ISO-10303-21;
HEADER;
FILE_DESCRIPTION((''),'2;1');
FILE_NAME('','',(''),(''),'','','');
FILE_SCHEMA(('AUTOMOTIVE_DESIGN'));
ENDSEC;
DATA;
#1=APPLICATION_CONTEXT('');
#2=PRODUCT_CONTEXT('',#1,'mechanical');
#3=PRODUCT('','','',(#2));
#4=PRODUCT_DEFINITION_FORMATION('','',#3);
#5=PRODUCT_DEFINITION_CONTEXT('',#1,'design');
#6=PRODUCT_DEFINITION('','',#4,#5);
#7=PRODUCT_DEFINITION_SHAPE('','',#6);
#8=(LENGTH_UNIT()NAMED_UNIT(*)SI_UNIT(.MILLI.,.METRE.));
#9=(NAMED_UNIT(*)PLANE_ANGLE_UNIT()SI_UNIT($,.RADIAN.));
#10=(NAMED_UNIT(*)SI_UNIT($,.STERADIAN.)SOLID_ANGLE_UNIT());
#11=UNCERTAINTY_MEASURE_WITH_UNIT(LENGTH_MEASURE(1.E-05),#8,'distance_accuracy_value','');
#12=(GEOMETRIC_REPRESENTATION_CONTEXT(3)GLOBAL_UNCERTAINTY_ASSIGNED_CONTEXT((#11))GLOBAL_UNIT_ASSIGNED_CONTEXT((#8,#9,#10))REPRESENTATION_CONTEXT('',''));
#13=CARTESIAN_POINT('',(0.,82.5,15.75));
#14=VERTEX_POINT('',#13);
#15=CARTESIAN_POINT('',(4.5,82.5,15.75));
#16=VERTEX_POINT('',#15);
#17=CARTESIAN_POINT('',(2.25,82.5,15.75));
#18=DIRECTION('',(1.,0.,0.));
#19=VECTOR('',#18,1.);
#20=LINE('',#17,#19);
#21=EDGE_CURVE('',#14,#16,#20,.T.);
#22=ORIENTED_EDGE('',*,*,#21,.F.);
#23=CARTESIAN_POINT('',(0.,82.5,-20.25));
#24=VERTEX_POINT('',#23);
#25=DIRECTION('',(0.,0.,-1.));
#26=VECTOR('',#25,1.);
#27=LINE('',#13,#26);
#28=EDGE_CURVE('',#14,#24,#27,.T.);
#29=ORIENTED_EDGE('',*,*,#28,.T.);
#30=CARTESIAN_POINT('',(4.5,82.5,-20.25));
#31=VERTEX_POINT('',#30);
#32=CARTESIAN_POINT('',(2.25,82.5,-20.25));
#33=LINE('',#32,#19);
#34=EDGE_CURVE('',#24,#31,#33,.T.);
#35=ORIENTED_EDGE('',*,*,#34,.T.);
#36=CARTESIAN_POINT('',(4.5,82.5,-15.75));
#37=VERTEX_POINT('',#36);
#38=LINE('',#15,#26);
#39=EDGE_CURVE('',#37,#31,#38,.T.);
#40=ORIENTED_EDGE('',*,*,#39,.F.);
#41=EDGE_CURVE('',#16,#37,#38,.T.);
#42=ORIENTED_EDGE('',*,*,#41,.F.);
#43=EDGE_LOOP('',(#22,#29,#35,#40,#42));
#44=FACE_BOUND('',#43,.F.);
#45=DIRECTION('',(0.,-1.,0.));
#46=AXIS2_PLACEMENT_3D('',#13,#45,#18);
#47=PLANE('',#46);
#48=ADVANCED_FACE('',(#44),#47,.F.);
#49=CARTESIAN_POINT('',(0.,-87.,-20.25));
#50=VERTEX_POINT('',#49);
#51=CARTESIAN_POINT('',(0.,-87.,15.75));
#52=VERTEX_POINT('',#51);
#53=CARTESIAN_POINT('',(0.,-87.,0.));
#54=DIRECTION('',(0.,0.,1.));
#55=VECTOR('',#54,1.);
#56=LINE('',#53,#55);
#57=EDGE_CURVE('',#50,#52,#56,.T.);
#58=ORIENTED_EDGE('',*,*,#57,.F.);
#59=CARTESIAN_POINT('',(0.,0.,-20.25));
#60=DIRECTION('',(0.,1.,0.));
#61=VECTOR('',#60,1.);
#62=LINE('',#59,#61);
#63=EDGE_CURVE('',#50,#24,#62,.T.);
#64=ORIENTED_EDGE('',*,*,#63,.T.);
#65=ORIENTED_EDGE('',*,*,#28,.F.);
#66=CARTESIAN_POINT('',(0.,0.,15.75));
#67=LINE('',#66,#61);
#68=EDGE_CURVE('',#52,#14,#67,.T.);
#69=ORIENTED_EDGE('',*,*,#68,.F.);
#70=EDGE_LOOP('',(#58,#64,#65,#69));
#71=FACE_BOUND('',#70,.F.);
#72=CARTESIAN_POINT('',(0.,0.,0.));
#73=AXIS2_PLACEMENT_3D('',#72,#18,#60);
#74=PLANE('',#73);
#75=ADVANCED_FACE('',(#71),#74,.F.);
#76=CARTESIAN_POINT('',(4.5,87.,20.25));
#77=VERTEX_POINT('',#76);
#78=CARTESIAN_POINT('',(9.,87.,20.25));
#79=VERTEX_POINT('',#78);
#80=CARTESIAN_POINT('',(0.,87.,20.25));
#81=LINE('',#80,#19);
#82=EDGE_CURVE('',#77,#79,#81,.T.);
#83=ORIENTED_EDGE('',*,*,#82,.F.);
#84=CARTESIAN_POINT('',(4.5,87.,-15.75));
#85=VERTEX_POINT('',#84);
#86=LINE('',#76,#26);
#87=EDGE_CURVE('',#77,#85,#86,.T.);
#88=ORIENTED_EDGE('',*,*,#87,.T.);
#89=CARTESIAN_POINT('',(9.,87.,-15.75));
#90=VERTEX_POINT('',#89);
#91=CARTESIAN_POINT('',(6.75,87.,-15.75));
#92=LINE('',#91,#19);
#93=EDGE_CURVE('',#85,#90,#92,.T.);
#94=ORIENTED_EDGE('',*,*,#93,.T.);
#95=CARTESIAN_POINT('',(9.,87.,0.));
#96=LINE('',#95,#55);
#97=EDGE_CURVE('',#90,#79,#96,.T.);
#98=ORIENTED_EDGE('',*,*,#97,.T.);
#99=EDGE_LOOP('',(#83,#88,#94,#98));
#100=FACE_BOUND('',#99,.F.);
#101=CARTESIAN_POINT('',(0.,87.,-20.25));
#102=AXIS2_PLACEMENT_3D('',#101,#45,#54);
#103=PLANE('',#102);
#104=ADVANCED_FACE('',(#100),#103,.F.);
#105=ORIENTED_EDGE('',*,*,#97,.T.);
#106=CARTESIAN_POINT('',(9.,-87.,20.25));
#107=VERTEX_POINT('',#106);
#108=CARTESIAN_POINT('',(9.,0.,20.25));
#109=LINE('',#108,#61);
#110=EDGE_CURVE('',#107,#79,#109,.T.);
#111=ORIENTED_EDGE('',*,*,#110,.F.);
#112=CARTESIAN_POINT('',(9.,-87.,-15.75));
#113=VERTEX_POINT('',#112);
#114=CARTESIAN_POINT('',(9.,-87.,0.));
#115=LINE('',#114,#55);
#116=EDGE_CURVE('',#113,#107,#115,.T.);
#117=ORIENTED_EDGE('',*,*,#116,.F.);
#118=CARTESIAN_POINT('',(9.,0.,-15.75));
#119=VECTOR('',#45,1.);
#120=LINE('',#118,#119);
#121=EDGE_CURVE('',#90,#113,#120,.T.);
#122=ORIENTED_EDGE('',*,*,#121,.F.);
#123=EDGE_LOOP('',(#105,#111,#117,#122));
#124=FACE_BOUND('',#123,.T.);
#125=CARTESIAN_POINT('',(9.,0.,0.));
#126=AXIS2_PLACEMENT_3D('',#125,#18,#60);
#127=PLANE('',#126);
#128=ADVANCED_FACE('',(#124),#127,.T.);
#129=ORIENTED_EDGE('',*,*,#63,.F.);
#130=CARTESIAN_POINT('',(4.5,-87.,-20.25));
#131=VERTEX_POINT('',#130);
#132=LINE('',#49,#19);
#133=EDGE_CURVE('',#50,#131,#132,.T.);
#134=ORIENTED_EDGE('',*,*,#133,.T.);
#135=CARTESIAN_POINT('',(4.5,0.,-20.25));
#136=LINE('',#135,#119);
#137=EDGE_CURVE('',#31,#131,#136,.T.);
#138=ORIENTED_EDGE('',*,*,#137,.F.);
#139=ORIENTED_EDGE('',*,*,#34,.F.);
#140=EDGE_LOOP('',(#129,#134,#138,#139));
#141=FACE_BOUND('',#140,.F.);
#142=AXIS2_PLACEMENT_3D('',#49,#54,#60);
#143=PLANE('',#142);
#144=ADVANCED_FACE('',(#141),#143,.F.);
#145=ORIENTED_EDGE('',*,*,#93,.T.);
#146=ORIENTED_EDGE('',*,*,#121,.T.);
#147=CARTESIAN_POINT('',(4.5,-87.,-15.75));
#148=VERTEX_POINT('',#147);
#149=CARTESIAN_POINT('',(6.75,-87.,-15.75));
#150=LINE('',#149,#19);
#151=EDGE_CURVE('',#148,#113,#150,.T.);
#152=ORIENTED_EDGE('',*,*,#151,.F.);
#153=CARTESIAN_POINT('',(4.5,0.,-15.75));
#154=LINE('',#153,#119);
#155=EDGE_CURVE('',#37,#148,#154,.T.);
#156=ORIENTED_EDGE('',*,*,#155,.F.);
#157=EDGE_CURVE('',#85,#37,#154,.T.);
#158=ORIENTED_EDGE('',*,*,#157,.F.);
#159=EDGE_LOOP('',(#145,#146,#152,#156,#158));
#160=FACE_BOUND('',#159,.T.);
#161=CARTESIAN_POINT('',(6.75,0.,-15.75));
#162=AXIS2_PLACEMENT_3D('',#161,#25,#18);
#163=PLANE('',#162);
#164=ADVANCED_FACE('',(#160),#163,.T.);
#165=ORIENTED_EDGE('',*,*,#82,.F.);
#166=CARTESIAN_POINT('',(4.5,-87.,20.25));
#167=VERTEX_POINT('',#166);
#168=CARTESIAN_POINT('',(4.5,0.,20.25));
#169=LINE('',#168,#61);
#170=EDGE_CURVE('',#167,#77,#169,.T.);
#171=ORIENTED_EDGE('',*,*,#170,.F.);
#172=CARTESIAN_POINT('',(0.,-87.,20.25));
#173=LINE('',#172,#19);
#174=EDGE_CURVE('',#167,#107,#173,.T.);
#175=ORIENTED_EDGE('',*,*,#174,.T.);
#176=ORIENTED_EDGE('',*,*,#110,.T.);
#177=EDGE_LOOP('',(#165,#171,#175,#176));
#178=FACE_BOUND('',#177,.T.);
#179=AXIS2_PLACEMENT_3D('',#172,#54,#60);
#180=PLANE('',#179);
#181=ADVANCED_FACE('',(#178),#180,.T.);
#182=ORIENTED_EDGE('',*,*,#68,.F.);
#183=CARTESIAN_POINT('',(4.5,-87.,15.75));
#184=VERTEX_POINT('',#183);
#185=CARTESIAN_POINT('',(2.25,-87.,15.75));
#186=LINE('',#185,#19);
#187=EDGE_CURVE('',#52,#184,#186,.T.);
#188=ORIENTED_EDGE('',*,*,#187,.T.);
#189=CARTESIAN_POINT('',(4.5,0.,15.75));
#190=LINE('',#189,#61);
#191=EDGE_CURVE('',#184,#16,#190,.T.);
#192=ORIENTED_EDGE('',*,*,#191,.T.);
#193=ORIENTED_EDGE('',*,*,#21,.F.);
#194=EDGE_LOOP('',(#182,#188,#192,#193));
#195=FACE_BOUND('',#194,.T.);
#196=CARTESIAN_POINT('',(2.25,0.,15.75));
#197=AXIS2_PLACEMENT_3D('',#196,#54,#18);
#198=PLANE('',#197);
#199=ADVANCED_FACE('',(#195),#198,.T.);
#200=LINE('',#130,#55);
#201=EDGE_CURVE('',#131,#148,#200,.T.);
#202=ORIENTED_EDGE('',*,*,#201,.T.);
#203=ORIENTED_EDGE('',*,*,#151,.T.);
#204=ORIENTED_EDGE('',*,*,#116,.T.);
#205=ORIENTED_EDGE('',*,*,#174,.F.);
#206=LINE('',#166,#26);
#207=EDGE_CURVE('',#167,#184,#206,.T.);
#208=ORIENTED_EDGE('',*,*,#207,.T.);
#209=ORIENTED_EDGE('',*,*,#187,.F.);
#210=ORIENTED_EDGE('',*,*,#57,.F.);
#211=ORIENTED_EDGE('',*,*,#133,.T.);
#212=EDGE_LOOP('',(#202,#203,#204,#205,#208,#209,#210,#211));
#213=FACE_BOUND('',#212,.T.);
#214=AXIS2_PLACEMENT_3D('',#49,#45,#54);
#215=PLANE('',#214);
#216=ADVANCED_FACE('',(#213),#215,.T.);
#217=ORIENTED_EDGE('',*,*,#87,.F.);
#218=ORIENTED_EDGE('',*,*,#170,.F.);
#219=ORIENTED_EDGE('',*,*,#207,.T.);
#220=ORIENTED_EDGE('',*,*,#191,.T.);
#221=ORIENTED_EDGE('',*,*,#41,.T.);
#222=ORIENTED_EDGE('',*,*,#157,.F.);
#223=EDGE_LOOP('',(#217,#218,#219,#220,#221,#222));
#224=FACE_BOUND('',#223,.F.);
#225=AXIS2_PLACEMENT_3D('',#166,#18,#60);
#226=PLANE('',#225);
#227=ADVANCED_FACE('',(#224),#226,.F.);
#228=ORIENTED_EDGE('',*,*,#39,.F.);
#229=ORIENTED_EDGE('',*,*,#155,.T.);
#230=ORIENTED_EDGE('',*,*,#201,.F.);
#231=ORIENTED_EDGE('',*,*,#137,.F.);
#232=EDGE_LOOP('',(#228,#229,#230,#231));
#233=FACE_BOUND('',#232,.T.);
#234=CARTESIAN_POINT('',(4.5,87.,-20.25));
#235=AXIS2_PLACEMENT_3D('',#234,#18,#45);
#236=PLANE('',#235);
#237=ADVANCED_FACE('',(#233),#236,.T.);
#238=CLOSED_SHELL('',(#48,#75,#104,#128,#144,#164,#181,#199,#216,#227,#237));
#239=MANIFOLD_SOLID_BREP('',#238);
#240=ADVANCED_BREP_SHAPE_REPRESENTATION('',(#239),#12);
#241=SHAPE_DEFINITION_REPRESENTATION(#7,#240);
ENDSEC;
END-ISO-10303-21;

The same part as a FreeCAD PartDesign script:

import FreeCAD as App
import Part
import Sketcher

V = App.Vector

doc = App.newDocument("Part")
params = doc.addObject("Spreadsheet::Sheet", "Params")
for row, (alias, value) in enumerate([
    ("sketch1_width", "174 mm"),
    ("sketch1_height", "40.5 mm"),
    ("pad1_length", "9 mm"),
    ("sketch2_height", "174 mm"),
    ("sketch2_width", "4.5 mm"),
    ("pocket1_length", "4.5 mm"),
    ("sketch3_width", "4.5 mm"),
    ("sketch4_height", "174 mm"),
    ("sketch4_width", "4.5 mm"),
    ("pocket3_length", "4.5 mm"),
], start=1):
    params.set(f"A{row}", alias)
    params.set(f"B{row}", "=" + value)
    params.setAlias(f"B{row}", alias)

body = doc.addObject("PartDesign::Body", "Body")

# Sketch on YZ plane
sketch1 = doc.addObject("Sketcher::SketchObject", "Sketch")
body.addObject(sketch1)
sketch1.AttachmentSupport = (doc.YZ_Plane, [""])
sketch1.MapMode = "FlatFace"
sketch1.addGeometry([
    Part.LineSegment(V(-87, 20.25, 0), V(-87, -20.25, 0)),
    Part.LineSegment(V(-87, -20.25, 0), V(87, -20.25, 0)),
    Part.LineSegment(V(87, -20.25, 0), V(87, 20.25, 0)),
    Part.LineSegment(V(87, 20.25, 0), V(-87, 20.25, 0)),
], False)
sketch1.addConstraint([
    Sketcher.Constraint("Coincident", 0, 2, 1, 1),
    Sketcher.Constraint("Coincident", 1, 2, 2, 1),
    Sketcher.Constraint("Coincident", 2, 2, 3, 1),
    Sketcher.Constraint("Coincident", 3, 2, 0, 1),
    Sketcher.Constraint("Vertical", 0),
    Sketcher.Constraint("Horizontal", 1),
    Sketcher.Constraint("Vertical", 2),
    Sketcher.Constraint("Horizontal", 3),
    Sketcher.Constraint("Symmetric", 0, 2, 2, 2, -1, 1),
    Sketcher.Constraint("DistanceX", 1, 1, 1, 2, 174.0),
    Sketcher.Constraint("DistanceY", 0, 2, 0, 1, 40.5),
])
sketch1.setExpression("Constraints[9]", "Params.sketch1_width")
sketch1.setExpression("Constraints[10]", "Params.sketch1_height")
pad1 = doc.addObject("PartDesign::Pad", "Pad")
body.addObject(pad1)
pad1.Profile = sketch1
pad1.setExpression("Length", "Params.pad1_length")

# Sketch on XY plane
sketch2 = doc.addObject("Sketcher::SketchObject", "Sketch001")
body.addObject(sketch2)
sketch2.AttachmentSupport = (doc.XY_Plane, [""])
sketch2.MapMode = "FlatFace"
sketch2.AttachmentOffset = App.Placement(V(0, 0, 20.25), App.Rotation())
sketch2.addGeometry([
    Part.LineSegment(V(0, 87, 0), V(0, -87, 0)),
    Part.LineSegment(V(0, -87, 0), V(4.5, -87, 0)),
    Part.LineSegment(V(4.5, -87, 0), V(4.5, 87, 0)),
    Part.LineSegment(V(4.5, 87, 0), V(0, 87, 0)),
], False)
sketch2.addConstraint([
    Sketcher.Constraint("Coincident", 0, 2, 1, 1),
    Sketcher.Constraint("Coincident", 1, 2, 2, 1),
    Sketcher.Constraint("Coincident", 2, 2, 3, 1),
    Sketcher.Constraint("Coincident", 3, 2, 0, 1),
    Sketcher.Constraint("Vertical", 0),
    Sketcher.Constraint("Horizontal", 1),
    Sketcher.Constraint("Vertical", 2),
    Sketcher.Constraint("Horizontal", 3),
    Sketcher.Constraint("Symmetric", 0, 2, 3, 2, -1, 1),
    Sketcher.Constraint("DistanceY", 0, 2, 0, 1, 174.0),
    Sketcher.Constraint("DistanceX", 1, 1, 1, 2, 4.5),
])
sketch2.setExpression("Constraints[9]", "Params.sketch2_height")
sketch2.setExpression("Constraints[10]", "Params.sketch2_width")
pocket1 = doc.addObject("PartDesign::Pocket", "Pocket")
body.addObject(pocket1)
pocket1.Profile = sketch2
pocket1.setExpression("Length", "Params.pocket1_length")

# Sketch on XY plane
sketch3 = doc.addObject("Sketcher::SketchObject", "Sketch002")
body.addObject(sketch3)
sketch3.AttachmentSupport = (doc.XY_Plane, [""])
sketch3.MapMode = "FlatFace"
sketch3.AttachmentOffset = App.Placement(V(0, 0, 15.75), App.Rotation())
sketch3.addGeometry([
    Part.LineSegment(V(0, 87, 0), V(0, 82.5, 0)),
    Part.LineSegment(V(0, 82.5, 0), V(4.5, 82.5, 0)),
    Part.LineSegment(V(4.5, 82.5, 0), V(4.5, 87, 0)),
    Part.LineSegment(V(4.5, 87, 0), V(0, 87, 0)),
], False)
sketch3.addConstraint([
    Sketcher.Constraint("Coincident", 0, 2, 1, 1),
    Sketcher.Constraint("Coincident", 1, 2, 2, 1),
    Sketcher.Constraint("Coincident", 2, 2, 3, 1),
    Sketcher.Constraint("Coincident", 3, 2, 0, 1),
    Sketcher.Constraint("Vertical", 0),
    Sketcher.Constraint("Horizontal", 1),
    Sketcher.Constraint("Vertical", 2),
    Sketcher.Constraint("Horizontal", 3),
    Sketcher.Constraint("PointOnObject", 0, 2, -2),
    Sketcher.Constraint("Equal", 3, 0),
    Sketcher.Constraint("DistanceX", 1, 1, 1, 2, 4.5),
    Sketcher.Constraint("DistanceY", -1, 1, 2, 2, 87.0),
])
sketch3.setExpression("Constraints[10]", "Params.sketch3_width")
pocket2 = doc.addObject("PartDesign::Pocket", "Pocket001")
body.addObject(pocket2)
pocket2.Profile = sketch3
pocket2.Type = "ThroughAll"

# Sketch on XY plane
sketch4 = doc.addObject("Sketcher::SketchObject", "Sketch003")
body.addObject(sketch4)
sketch4.AttachmentSupport = (doc.XY_Plane, [""])
sketch4.MapMode = "FlatFace"
sketch4.AttachmentOffset = App.Placement(V(0, 0, -20.25), App.Rotation())
sketch4.addGeometry([
    Part.LineSegment(V(4.5, -87, 0), V(4.5, 87, 0)),
    Part.LineSegment(V(4.5, 87, 0), V(9, 87, 0)),
    Part.LineSegment(V(9, 87, 0), V(9, -87, 0)),
    Part.LineSegment(V(9, -87, 0), V(4.5, -87, 0)),
], False)
sketch4.addConstraint([
    Sketcher.Constraint("Coincident", 0, 2, 1, 1),
    Sketcher.Constraint("Coincident", 1, 2, 2, 1),
    Sketcher.Constraint("Coincident", 2, 2, 3, 1),
    Sketcher.Constraint("Coincident", 3, 2, 0, 1),
    Sketcher.Constraint("Vertical", 0),
    Sketcher.Constraint("Horizontal", 1),
    Sketcher.Constraint("Vertical", 2),
    Sketcher.Constraint("Horizontal", 3),
    Sketcher.Constraint("DistanceY", 0, 1, 0, 2, 174.0),
    Sketcher.Constraint("DistanceX", 1, 1, 1, 2, 4.5),
    Sketcher.Constraint("DistanceY", -1, 1, 0, 2, 87.0),
    Sketcher.Constraint("DistanceX", -1, 1, 1, 2, 9.0),
])
sketch4.setExpression("Constraints[8]", "Params.sketch4_height")
sketch4.setExpression("Constraints[9]", "Params.sketch4_width")
pocket3 = doc.addObject("PartDesign::Pocket", "Pocket002")
body.addObject(pocket3)
pocket3.Profile = sketch4
pocket3.setExpression("Length", "Params.pocket3_length")
pocket3.Reversed = True

doc.recompute()
